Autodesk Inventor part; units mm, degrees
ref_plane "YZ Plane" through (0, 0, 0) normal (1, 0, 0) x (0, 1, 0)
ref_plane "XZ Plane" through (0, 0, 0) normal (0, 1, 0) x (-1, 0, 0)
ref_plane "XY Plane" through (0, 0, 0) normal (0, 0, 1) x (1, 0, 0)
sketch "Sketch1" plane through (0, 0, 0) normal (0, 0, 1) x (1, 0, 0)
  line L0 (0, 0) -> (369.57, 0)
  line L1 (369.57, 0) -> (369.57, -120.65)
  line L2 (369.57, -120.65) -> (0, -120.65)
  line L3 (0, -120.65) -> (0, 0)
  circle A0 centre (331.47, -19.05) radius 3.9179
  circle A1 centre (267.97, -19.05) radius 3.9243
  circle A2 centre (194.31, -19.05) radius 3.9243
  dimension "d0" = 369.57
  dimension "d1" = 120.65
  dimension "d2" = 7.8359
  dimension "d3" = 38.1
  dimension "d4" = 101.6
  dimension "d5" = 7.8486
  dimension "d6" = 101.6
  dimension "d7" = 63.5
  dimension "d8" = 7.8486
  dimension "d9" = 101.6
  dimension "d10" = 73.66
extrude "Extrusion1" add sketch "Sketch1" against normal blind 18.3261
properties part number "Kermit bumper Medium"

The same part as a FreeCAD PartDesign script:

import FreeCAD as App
import Part
import Sketcher

V = App.Vector
Q = App.Units.Quantity


def add_polygon(sketch, points):
    """Adds a closed chain of lines whose ends are joined by coincident constraints."""
    first, n = sketch.GeometryCount, len(points)
    for a, b in zip(points, points[1:] + points[:1]):
        sketch.addGeometry(Part.LineSegment(App.Vector(*a, 0), App.Vector(*b, 0)), False)
    for i in range(n):
        sketch.addConstraint(Sketcher.Constraint("Coincident", first + i, 2, first + (i + 1) % n, 1))

doc = App.newDocument("Part")
body = doc.addObject("PartDesign::Body", "Body")

# Sketch on XY plane
sketch1 = body.newObject("Sketcher::SketchObject", "Sketch")
sketch1.AttachmentSupport = (doc.getObject("XY_Plane"), [""])
sketch1.MapMode = "FlatFace"
add_polygon(sketch1, [(369.6, 0), (0, 0), (0, -120.7), (369.6, -120.7)])  # lines 0-3
sketch1.addGeometry(Part.Circle(V(194.3, -19.1, 0), V(0, 0, 1), 3.9), False)  # 4
sketch1.addGeometry(Part.Circle(V(268, -19.1, 0), V(0, 0, 1), 3.9), False)  # 5
sketch1.addGeometry(Part.Circle(V(331.5, -19.1, 0), V(0, 0, 1), 3.9), False)  # 6
sketch1.addConstraint([
    Sketcher.Constraint("Horizontal", 0),
    Sketcher.Constraint("Vertical", 1),
    Sketcher.Constraint("Horizontal", 2),
    Sketcher.Constraint("Vertical", 3),
    Sketcher.Constraint("Coincident", 0, 2, -1, 1),
    Sketcher.Constraint("Equal", 4, 5),
    Sketcher.Constraint("Horizontal", 4, 3, 5, 3),
    Sketcher.Constraint("Horizontal", 5, 3, 6, 3),
    Sketcher.Constraint("Diameter", 4, Q("0.309 in")),
    Sketcher.Constraint("DistanceY", 1, 2, 4, 3, Q("4 in")),
    Sketcher.Constraint("DistanceX", 5, 3, 2, 2, Q("4 in")),
    Sketcher.Constraint("Diameter", 6, Q("0.3085 in")),
    Sketcher.Constraint("DistanceX", 0, 2, 0, 1, Q("14.55 in")),
    Sketcher.Constraint("DistanceY", 1, 2, 1, 1, Q("4.75 in")),
    Sketcher.Constraint("DistanceX", 4, 3, 5, 3, Q("2.9 in")),
    Sketcher.Constraint("DistanceX", 5, 3, 6, 3, Q("2.5 in")),
])
pad1 = body.newObject("PartDesign::Pad", "Pad")
pad1.Profile = sketch1
pad1.Length = Q("0.7215 in")
pad1.Reversed = True

doc.recompute()
